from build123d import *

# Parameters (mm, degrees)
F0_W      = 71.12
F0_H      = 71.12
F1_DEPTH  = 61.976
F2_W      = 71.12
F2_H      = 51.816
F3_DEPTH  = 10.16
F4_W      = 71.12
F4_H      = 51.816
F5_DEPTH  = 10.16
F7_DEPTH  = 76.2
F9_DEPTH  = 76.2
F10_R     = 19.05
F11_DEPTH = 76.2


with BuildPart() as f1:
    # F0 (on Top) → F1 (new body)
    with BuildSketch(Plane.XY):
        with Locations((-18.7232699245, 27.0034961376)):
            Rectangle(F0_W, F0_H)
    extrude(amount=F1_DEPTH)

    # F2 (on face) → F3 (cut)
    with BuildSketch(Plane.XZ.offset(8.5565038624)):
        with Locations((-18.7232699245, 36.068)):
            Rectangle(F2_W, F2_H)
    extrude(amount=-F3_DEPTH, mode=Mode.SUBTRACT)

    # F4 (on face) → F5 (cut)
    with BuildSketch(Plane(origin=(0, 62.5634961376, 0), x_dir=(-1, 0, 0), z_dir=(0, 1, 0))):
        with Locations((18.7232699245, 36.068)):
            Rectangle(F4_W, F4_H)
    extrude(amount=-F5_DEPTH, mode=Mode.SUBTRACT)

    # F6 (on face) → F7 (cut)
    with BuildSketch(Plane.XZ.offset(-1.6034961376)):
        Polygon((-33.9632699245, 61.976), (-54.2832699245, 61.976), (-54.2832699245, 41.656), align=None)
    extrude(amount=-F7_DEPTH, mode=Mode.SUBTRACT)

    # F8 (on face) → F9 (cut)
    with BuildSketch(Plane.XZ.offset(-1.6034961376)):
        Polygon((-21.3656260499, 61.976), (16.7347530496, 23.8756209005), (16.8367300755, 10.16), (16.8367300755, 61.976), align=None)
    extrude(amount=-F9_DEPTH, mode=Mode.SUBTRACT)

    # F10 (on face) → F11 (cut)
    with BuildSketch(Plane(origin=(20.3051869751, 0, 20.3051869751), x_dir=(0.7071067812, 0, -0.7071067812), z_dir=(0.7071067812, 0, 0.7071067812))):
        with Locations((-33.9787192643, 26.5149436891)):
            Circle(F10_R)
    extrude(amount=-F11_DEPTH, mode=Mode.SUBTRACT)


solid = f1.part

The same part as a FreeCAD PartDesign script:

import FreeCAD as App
import Part
import Sketcher
from FreeCAD import Vector
Q = App.Units.Quantity


def add_polygon(sketch, points):
    """Adds a closed chain of lines whose ends are joined by coincident constraints."""
    first, n = sketch.GeometryCount, len(points)
    for a, b in zip(points, points[1:] + points[:1]):
        sketch.addGeometry(Part.LineSegment(App.Vector(*a, 0), App.Vector(*b, 0)), False)
    for i in range(n):
        sketch.addConstraint(Sketcher.Constraint("Coincident", first + i, 2, first + (i + 1) % n, 1))

doc = App.newDocument("Part")
params = doc.addObject("Spreadsheet::Sheet", "Params")
for row, (alias, value) in enumerate([
    ("sketch1_width", "2.8 in"),
    ("pad1_length", "2.44 in"),
    ("sketch2_width", "2.8 in"),
    ("sketch2_height", "2.04 in"),
    ("pocket1_length", "0.4 in"),
    ("sketch3_width", "2.8 in"),
    ("sketch3_height", "2.04 in"),
    ("pocket2_length", "0.4 in"),
    ("sketch4_width", "0.8 in"),
    ("pocket3_length", "3 in"),
    ("sketch5_height", "2.04 in"),
    ("sketch5_length", "0.54 in"),
    ("pocket4_length", "3 in"),
    ("sketch6_diameter", "1.5 in"),
    ("pocket5_length", "3 in"),
], start=1):
    params.set(f"A{row}", alias)
    params.set(f"B{row}", "=" + value)
    params.setAlias(f"B{row}", alias)

body = doc.addObject("PartDesign::Body", "Body")

sketch1 = body.newObject("Sketcher::SketchObject", "Sketch")
sketch1.AttachmentSupport = (doc.getObject("XY_Plane"), [""])
sketch1.MapMode = "FlatFace"
add_polygon(sketch1, [(-54.28327, 62.563496), (-54.28327, -8.556504), (16.83673, -8.556504), (16.83673, 62.563496)])
sketch1.addConstraint(Sketcher.Constraint("Vertical", 0))
sketch1.addConstraint(Sketcher.Constraint("Horizontal", 1))
sketch1.addConstraint(Sketcher.Constraint("Vertical", 2))
sketch1.addConstraint(Sketcher.Constraint("Horizontal", 3))
sketch1.addConstraint(Sketcher.Constraint("Equal", 3, 0))
sketch1.addConstraint(Sketcher.Constraint("DistanceX", 1, 1, 1, 2, Q("2.8 in")))
sketch1.addConstraint(Sketcher.Constraint("DistanceX", 0, 2, -1, 1, 54.28327))
sketch1.addConstraint(Sketcher.Constraint("DistanceY", 0, 2, -1, 1, 8.556504))
sketch1.setExpression("Constraints[9]", "Params.sketch1_width")
pad1 = body.newObject("PartDesign::Pad", "Pad")
pad1.Profile = sketch1
pad1.setExpression("Length", "Params.pad1_length")

sketch2 = body.newObject("Sketcher::SketchObject", "Sketch001")
sketch2.AttachmentSupport = (doc.getObject("XZ_Plane"), [""])
sketch2.MapMode = "FlatFace"
sketch2.AttachmentOffset = App.Placement(Vector(0, 0, 8.556504), App.Rotation())
add_polygon(sketch2, [(-54.28327, 61.976), (-54.28327, 10.16), (16.83673, 10.16), (16.83673, 61.976)])
sketch2.addConstraint(Sketcher.Constraint("Vertical", 0))
sketch2.addConstraint(Sketcher.Constraint("Horizontal", 1))
sketch2.addConstraint(Sketcher.Constraint("Vertical", 2))
sketch2.addConstraint(Sketcher.Constraint("Horizontal", 3))
sketch2.addConstraint(Sketcher.Constraint("DistanceX", 1, 1, 1, 2, Q("2.8 in")))
sketch2.addConstraint(Sketcher.Constraint("DistanceY", 0, 2, 0, 1, Q("2.04 in")))
sketch2.addConstraint(Sketcher.Constraint("DistanceY", -1, 1, 0, 2, Q("0.4 in")))
sketch2.addConstraint(Sketcher.Constraint("DistanceX", 0, 2, -1, 1, 54.28327))
sketch2.setExpression("Constraints[8]", "Params.sketch2_width")
sketch2.setExpression("Constraints[9]", "Params.sketch2_height")
pocket1 = body.newObject("PartDesign::Pocket", "Pocket")
pocket1.Profile = sketch2
pocket1.setExpression("Length", "Params.pocket1_length")

sketch3 = body.newObject("Sketcher::SketchObject", "Sketch002")
sketch3.AttachmentSupport = (doc.getObject("XZ_Plane"), [""])
sketch3.MapMode = "FlatFace"
sketch3.AttachmentOffset = App.Placement(Vector(0, 0, -62.563496), App.Rotation())
add_polygon(sketch3, [(16.83673, 61.976), (16.83673, 10.16), (-54.28327, 10.16), (-54.28327, 61.976)])
sketch3.addConstraint(Sketcher.Constraint("Vertical", 0))
sketch3.addConstraint(Sketcher.Constraint("Horizontal", 1))
sketch3.addConstraint(Sketcher.Constraint("Vertical", 2))
sketch3.addConstraint(Sketcher.Constraint("Horizontal", 3))
sketch3.addConstraint(Sketcher.Constraint("DistanceX", 1, 2, 1, 1, Q("2.8 in")))
sketch3.addConstraint(Sketcher.Constraint("DistanceY", 0, 2, 0, 1, Q("2.04 in")))
sketch3.addConstraint(Sketcher.Constraint("DistanceY", -1, 1, 0, 2, Q("0.4 in")))
sketch3.addConstraint(Sketcher.Constraint("DistanceX", -1, 1, 0, 2, 16.83673))
sketch3.setExpression("Constraints[8]", "Params.sketch3_width")
sketch3.setExpression("Constraints[9]", "Params.sketch3_height")
pocket2 = body.newObject("PartDesign::Pocket", "Pocket001")
pocket2.Profile = sketch3
pocket2.setExpression("Length", "Params.pocket2_length")
pocket2.Reversed = True

sketch4 = body.newObject("Sketcher::SketchObject", "Sketch003")
sketch4.AttachmentSupport = (doc.getObject("XZ_Plane"), [""])
sketch4.MapMode = "FlatFace"
sketch4.AttachmentOffset = App.Placement(Vector(0, 0, -1.603496), App.Rotation())
add_polygon(sketch4, [(-33.96327, 61.976), (-54.28327, 61.976), (-54.28327, 41.656)])
sketch4.addConstraint(Sketcher.Constraint("Horizontal", 0))
sketch4.addConstraint(Sketcher.Constraint("Vertical", 1))
sketch4.addConstraint(Sketcher.Constraint("Equal", 0, 1))
sketch4.addConstraint(Sketcher.Constraint("DistanceX", 0, 2, 0, 1, Q("0.8 in")))
sketch4.addConstraint(Sketcher.Constraint("DistanceY", -1, 1, 0, 2, Q("2.44 in")))
sketch4.addConstraint(Sketcher.Constraint("DistanceX", 0, 2, -1, 1, 54.28327))
sketch4.setExpression("Constraints[6]", "Params.sketch4_width")
pocket3 = body.newObject("PartDesign::Pocket", "Pocket002")
pocket3.Profile = sketch4
pocket3.setExpression("Length", "Params.pocket3_length")

sketch5 = body.newObject("Sketcher::SketchObject", "Sketch004")
sketch5.AttachmentSupport = (doc.getObject("XZ_Plane"), [""])
sketch5.MapMode = "FlatFace"
sketch5.AttachmentOffset = App.Placement(Vector(0, 0, -1.603496), App.Rotation())
add_polygon(sketch5, [(-21.365626, 61.976), (16.734753, 23.875621), (16.83673, 10.16), (16.83673, 61.976)])
sketch5.addConstraint(Sketcher.Constraint("Vertical", 2))
sketch5.addConstraint(Sketcher.Constraint("Horizontal", 3))
sketch5.addConstraint(Sketcher.Constraint("Angle", 0, Q("-45 deg")))
sketch5.addConstraint(Sketcher.Constraint("DistanceY", 2, 1, 2, 2, Q("2.04 in")))
sketch5.addConstraint(Sketcher.Constraint("DistanceY", -1, 1, 1, 2, Q("0.4 in")))
sketch5.addConstraint(Sketcher.Constraint("Distance", 1, Q("0.54 in")))
sketch5.addConstraint(Sketcher.Constraint("DistanceX", 3, 2, 3, 1, 38.202356))
sketch5.addConstraint(Sketcher.Constraint("DistanceX", -1, 1, 1, 2, 16.83673))
sketch5.setExpression("Constraints[7]", "Params.sketch5_height")
sketch5.setExpression("Constraints[9]", "Params.sketch5_length")
pocket4 = body.newObject("PartDesign::Pocket", "Pocket003")
pocket4.Profile = sketch5
pocket4.setExpression("Length", "Params.pocket4_length")

sketch6 = body.newObject("Sketcher::SketchObject", "Sketch005")
sketch6.Placement = App.Placement(Vector(20.305187, 0, 20.305187), App.Rotation(Vector(0.707106781, 0, -0.707106781), Vector(0, 0.999999999, 0), Vector(0.707106781, 0, 0.707106781), "ZXY"))
sketch6.addGeometry(Part.Circle(Vector(-33.978719, 26.514944, 0), Vector(0, 0, 1), 19.05), False)
sketch6.addConstraint(Sketcher.Constraint("Diameter", 0, Q("1.5 in")))
sketch6.addConstraint(Sketcher.Constraint("DistanceX", 0, 3, -1, 1, 33.978719))
sketch6.addConstraint(Sketcher.Constraint("DistanceY", -1, 1, 0, 3, 26.514944))
sketch6.setExpression("Constraints[0]", "Params.sketch6_diameter")
pocket5 = body.newObject("PartDesign::Pocket", "Pocket004")
pocket5.Profile = sketch6
pocket5.setExpression("Length", "Params.pocket5_length")

doc.recompute()
